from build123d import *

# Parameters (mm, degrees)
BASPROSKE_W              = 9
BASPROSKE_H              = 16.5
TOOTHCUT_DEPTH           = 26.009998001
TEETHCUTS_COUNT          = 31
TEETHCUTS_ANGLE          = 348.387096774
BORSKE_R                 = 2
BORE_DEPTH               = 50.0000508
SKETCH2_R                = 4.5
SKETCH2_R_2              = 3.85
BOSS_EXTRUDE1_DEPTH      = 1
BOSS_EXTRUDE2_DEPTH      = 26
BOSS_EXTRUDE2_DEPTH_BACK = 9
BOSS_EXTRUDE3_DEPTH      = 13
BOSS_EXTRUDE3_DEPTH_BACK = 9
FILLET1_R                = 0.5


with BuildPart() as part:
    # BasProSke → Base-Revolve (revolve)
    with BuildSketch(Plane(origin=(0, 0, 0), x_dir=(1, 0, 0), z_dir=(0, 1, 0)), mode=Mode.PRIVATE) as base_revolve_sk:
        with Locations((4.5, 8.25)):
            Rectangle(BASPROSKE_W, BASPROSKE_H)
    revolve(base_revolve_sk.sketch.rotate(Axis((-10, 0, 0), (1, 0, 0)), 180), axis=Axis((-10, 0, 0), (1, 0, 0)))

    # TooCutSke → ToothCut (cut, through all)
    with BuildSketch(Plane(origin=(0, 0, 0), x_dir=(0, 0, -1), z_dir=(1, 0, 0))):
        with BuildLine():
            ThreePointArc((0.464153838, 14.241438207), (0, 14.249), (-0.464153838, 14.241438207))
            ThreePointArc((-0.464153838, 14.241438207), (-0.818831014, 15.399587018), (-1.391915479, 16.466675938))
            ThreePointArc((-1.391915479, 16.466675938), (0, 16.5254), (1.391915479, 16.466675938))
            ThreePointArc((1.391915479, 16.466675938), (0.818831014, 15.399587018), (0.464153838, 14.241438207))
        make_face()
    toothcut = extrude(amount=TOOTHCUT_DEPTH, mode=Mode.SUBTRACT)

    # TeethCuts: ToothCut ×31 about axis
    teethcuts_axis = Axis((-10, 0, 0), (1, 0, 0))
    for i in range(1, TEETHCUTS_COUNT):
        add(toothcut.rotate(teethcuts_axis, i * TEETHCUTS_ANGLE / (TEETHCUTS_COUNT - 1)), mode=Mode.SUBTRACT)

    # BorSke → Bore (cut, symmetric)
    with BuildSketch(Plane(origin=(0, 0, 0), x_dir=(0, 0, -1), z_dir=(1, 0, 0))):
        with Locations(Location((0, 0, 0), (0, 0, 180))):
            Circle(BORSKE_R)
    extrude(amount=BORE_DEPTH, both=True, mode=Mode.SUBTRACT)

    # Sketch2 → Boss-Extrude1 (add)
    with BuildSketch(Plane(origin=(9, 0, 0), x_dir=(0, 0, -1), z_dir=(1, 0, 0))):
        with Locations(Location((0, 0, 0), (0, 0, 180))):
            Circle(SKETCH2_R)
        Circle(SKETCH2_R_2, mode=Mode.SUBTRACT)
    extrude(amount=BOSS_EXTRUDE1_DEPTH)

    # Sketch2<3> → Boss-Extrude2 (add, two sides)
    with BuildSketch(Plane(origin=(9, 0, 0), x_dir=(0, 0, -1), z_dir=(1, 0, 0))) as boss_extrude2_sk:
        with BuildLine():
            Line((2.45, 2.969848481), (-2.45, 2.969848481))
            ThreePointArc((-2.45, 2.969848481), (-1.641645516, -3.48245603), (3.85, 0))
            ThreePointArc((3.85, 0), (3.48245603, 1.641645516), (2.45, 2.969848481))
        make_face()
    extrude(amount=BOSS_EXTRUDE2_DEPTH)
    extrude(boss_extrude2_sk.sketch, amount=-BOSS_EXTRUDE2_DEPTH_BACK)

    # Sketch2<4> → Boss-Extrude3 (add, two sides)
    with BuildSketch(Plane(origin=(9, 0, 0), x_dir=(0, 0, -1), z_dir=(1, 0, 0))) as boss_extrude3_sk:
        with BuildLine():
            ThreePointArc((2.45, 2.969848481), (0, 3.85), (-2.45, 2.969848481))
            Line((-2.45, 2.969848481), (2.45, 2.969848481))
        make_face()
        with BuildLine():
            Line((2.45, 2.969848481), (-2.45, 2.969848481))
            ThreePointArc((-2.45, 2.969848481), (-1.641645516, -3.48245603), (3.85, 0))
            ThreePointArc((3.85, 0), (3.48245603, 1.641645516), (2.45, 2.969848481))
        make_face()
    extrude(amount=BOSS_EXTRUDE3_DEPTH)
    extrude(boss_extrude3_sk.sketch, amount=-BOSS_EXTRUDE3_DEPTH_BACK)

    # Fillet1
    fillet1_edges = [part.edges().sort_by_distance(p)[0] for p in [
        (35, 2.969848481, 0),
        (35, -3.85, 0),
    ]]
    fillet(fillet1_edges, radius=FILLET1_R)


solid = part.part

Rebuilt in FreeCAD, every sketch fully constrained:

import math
import FreeCAD as App
import Part
import Sketcher

V = App.Vector


def edges_at(feature, points):
    """Names of the edges that pass closest to the given points."""
    edges = feature.Shape.Edges
    near = lambda p: min(range(len(edges)), key=lambda i: edges[i].distToShape(Part.Vertex(*p))[0])
    return sorted({f"Edge{near(p) + 1}" for p in points})


def add_polygon(sketch, points):
    """Adds a closed chain of lines whose ends are joined by coincident constraints."""
    first, n = sketch.GeometryCount, len(points)
    for a, b in zip(points, points[1:] + points[:1]):
        sketch.addGeometry(Part.LineSegment(App.Vector(*a, 0), App.Vector(*b, 0)), False)
    for i in range(n):
        sketch.addConstraint(Sketcher.Constraint("Coincident", first + i, 2, first + (i + 1) % n, 1))

doc = App.newDocument("Part")
params = doc.addObject("Spreadsheet::Sheet", "Params")
for row, (alias, value) in enumerate([
    ("sketch1_width", "9 mm"),
    ("sketch1_height", "16.5 mm"),
    ("revolution_angle", "360 deg"),
    ("sketch2_radius", "6.2 mm"),
    ("sketch3_diameter", "4 mm"),
    ("pocket2_length", "100.000102 mm"),
    ("sketch4_diameter", "9 mm"),
    ("sketch4_diameter2", "7.7 mm"),
    ("pad1_length", "1 mm"),
    ("sketch5_radius", "3.85 mm"),
    ("sketch5_height", "4.9 mm"),
    ("pad2_length", "26 mm"),
    ("pad2_length2", "9 mm"),
    ("sketch6_radius", "3.85 mm"),
    ("pad3_length", "13 mm"),
    ("pad3_length2", "9 mm"),
    ("fillet_radius", "0.5 mm"),
], start=1):
    params.set(f"A{row}", alias)
    params.set(f"B{row}", "=" + value)
    params.setAlias(f"B{row}", alias)

body = doc.addObject("PartDesign::Body", "Body")

sketch1 = body.newObject("Sketcher::SketchObject", "Sketch")
sketch1.AttachmentSupport = (doc.getObject("XZ_Plane"), [""])
sketch1.MapMode = "FlatFace"
add_polygon(sketch1, [(0, -16), (0, 0), (9, 0), (9, -16)])
sketch1.addConstraint(Sketcher.Constraint("Vertical", 0))
sketch1.addConstraint(Sketcher.Constraint("Horizontal", 1))
sketch1.addConstraint(Sketcher.Constraint("Vertical", 2))
sketch1.addConstraint(Sketcher.Constraint("Horizontal", 3))
sketch1.addConstraint(Sketcher.Constraint("Coincident", 0, 2, -1, 1))
sketch1.addConstraint(Sketcher.Constraint("DistanceX", 1, 1, 1, 2, 9.0))
sketch1.addConstraint(Sketcher.Constraint("DistanceY", 0, 1, 0, 2, 16.5))
sketch1.setExpression("Constraints[9]", "Params.sketch1_width")
sketch1.setExpression("Constraints[10]", "Params.sketch1_height")
revolution = body.newObject("PartDesign::Revolution", "Revolution")
revolution.Profile = sketch1
revolution.ReferenceAxis = (sketch1, ["H_Axis"])
revolution.setExpression("Angle", "Params.revolution_angle")

sketch2 = body.newObject("Sketcher::SketchObject", "Sketch001")
sketch2.AttachmentSupport = (doc.getObject("YZ_Plane"), [""])
sketch2.MapMode = "FlatFace"
sketch2.addGeometry(Part.ArcOfCircle(Part.Circle(V(0, 0, 0), V(0, 0, 1), 14.2), math.radians(-1.87), math.radians(1.87)), False)
sketch2.addGeometry(Part.ArcOfCircle(Part.Circle(V(13, -6.5, 0), V(0, 0, 1), 6.2), math.radians(56), math.radians(79)), False)
sketch2.addGeometry(Part.ArcOfCircle(Part.Circle(V(0, 0, 0), V(0, 0, 1), 16.5), math.radians(-4.83), math.radians(4.83)), False)
sketch2.addGeometry(Part.ArcOfCircle(Part.Circle(V(13, 6.5, 0), V(0, 0, 1), 6.2), math.radians(-79), math.radians(-56)), False)
sketch2.addConstraint(Sketcher.Constraint("Coincident", 0, 1, 1, 2))
sketch2.addConstraint(Sketcher.Constraint("Coincident", 1, 1, 2, 1))
sketch2.addConstraint(Sketcher.Constraint("Coincident", 2, 2, 3, 2))
sketch2.addConstraint(Sketcher.Constraint("Coincident", 3, 1, 0, 2))
sketch2.addConstraint(Sketcher.Constraint("Coincident", 0, 3, -1, 1))
sketch2.addConstraint(Sketcher.Constraint("Coincident", 2, 3, -1, 1))
sketch2.addConstraint(Sketcher.Constraint("Equal", 1, 3))
sketch2.addConstraint(Sketcher.Constraint("Symmetric", 1, 3, 3, 3, -1))
sketch2.addConstraint(Sketcher.Constraint("Radius", 1, 6.2))
sketch2.addConstraint(Sketcher.Constraint("Radius", 0, 14.248999))
sketch2.addConstraint(Sketcher.Constraint("Radius", 2, 16.5254))
sketch2.addConstraint(Sketcher.Constraint("DistanceX", 0, 3, 1, 3, 13.013702))
sketch2.addConstraint(Sketcher.Constraint("DistanceY", 1, 3, -1, 1, 6.541379))
sketch2.setExpression("Constraints[8]", "Params.sketch2_radius")
pocket1 = body.newObject("PartDesign::Pocket", "Pocket")
pocket1.Profile = sketch2
pocket1.Type = "ThroughAll"
pocket1.Reversed = True
doc.recompute()

polarpattern = body.newObject("PartDesign::PolarPattern", "PolarPattern")
polarpattern.Originals = [pocket1]
polarpattern.Axis = (doc.getObject("X_Axis"), [""])
polarpattern.Angle = 360
polarpattern.Occurrences = 31
body.Tip = polarpattern

sketch3 = body.newObject("Sketcher::SketchObject", "Sketch002")
sketch3.AttachmentSupport = (doc.getObject("YZ_Plane"), [""])
sketch3.MapMode = "FlatFace"
sketch3.addGeometry(Part.Circle(V(0, 0, 0), V(0, 0, 1), 2), False)
sketch3.addConstraint(Sketcher.Constraint("Coincident", 0, 3, -1, 1))
sketch3.addConstraint(Sketcher.Constraint("Diameter", 0, 4.0))
sketch3.setExpression("Constraints[1]", "Params.sketch3_diameter")
pocket2 = body.newObject("PartDesign::Pocket", "Pocket001")
pocket2.Profile = sketch3
pocket2.setExpression("Length", "Params.pocket2_length")
pocket2.Midplane = True

sketch4 = body.newObject("Sketcher::SketchObject", "Sketch003")
sketch4.AttachmentSupport = (doc.getObject("YZ_Plane"), [""])
sketch4.MapMode = "FlatFace"
sketch4.AttachmentOffset = App.Placement(V(0, 0, 9), App.Rotation())
sketch4.addGeometry(Part.Circle(V(0, 0, 0), V(0, 0, 1), 4.5), False)
sketch4.addGeometry(Part.Circle(V(0, 0, 0), V(0, 0, 1), 3.9), False)
sketch4.addConstraint(Sketcher.Constraint("Coincident", 0, 3, -1, 1))
sketch4.addConstraint(Sketcher.Constraint("Coincident", 1, 3, -1, 1))
sketch4.addConstraint(Sketcher.Constraint("Diameter", 0, 9.0))
sketch4.addConstraint(Sketcher.Constraint("Diameter", 1, 7.7))
sketch4.setExpression("Constraints[2]", "Params.sketch4_diameter")
sketch4.setExpression("Constraints[3]", "Params.sketch4_diameter2")
pad1 = body.newObject("PartDesign::Pad", "Pad")
pad1.Profile = sketch4
pad1.setExpression("Length", "Params.pad1_length")

sketch5 = body.newObject("Sketcher::SketchObject", "Sketch004")
sketch5.AttachmentSupport = (doc.getObject("YZ_Plane"), [""])
sketch5.MapMode = "FlatFace"
sketch5.AttachmentOffset = App.Placement(V(0, 0, 9), App.Rotation())
sketch5.addGeometry(Part.LineSegment(V(3, -2.5, 0), V(3, 2.5, 0)), False)
sketch5.addGeometry(Part.ArcOfCircle(Part.Circle(V(0, 0, 0), V(0, 0, 1), 3.9), math.radians(40), math.radians(270)), False)
sketch5.addGeometry(Part.ArcOfCircle(Part.Circle(V(0, 0, 0), V(0, 0, 1), 3.8), math.radians(-90), math.radians(-40)), False)
sketch5.addConstraint(Sketcher.Constraint("Coincident", 0, 2, 1, 1))
sketch5.addConstraint(Sketcher.Constraint("Tangent", 1, 2, 2, 1))
sketch5.addConstraint(Sketcher.Constraint("Coincident", 2, 2, 0, 1))
sketch5.addConstraint(Sketcher.Constraint("Vertical", 0))
sketch5.addConstraint(Sketcher.Constraint("Coincident", 1, 3, -1, 1))
sketch5.addConstraint(Sketcher.Constraint("Equal", 1, 2))
sketch5.addConstraint(Sketcher.Constraint("PointOnObject", 1, 2, -2))
sketch5.addConstraint(Sketcher.Constraint("Radius", 1, 3.85))
sketch5.addConstraint(Sketcher.Constraint("DistanceY", 0, 1, 0, 2, 4.9))
sketch5.setExpression("Constraints[7]", "Params.sketch5_radius")
sketch5.setExpression("Constraints[8]", "Params.sketch5_height")
pad2 = body.newObject("PartDesign::Pad", "Pad001")
pad2.Profile = sketch5
pad2.Type = "TwoLengths"
pad2.setExpression("Length", "Params.pad2_length")
pad2.setExpression("Length2", "Params.pad2_length2")

sketch6 = body.newObject("Sketcher::SketchObject", "Sketch005")
sketch6.AttachmentSupport = (doc.getObject("YZ_Plane"), [""])
sketch6.MapMode = "FlatFace"
sketch6.AttachmentOffset = App.Placement(V(0, 0, 9), App.Rotation())
sketch6.addGeometry(Part.ArcOfCircle(Part.Circle(V(0, 0, 0), V(0, 0, 1), 3.9), math.radians(-40), math.radians(40)), False)
sketch6.addGeometry(Part.ArcOfCircle(Part.Circle(V(0, 0, 0), V(0, 0, 1), 3.9), math.radians(40), math.radians(270)), False)
sketch6.addGeometry(Part.ArcOfCircle(Part.Circle(V(0, 0, 0), V(0, 0, 1), 3.8), math.radians(-90), math.radians(-40)), False)
sketch6.addConstraint(Sketcher.Constraint("Tangent", 0, 2, 1, 1))
sketch6.addConstraint(Sketcher.Constraint("Tangent", 1, 2, 2, 1))
sketch6.addConstraint(Sketcher.Constraint("Tangent", 2, 2, 0, 1))
sketch6.addConstraint(Sketcher.Constraint("Coincident", 0, 3, -1, 1))
sketch6.addConstraint(Sketcher.Constraint("PointOnObject", 1, 2, -2))
sketch6.addConstraint(Sketcher.Constraint("Vertical", 0, 2, 2, 2))
sketch6.addConstraint(Sketcher.Constraint("Radius", 0, 3.85))
sketch6.addConstraint(Sketcher.Constraint("DistanceY", 1, 2, 0, 2, 6.3))
sketch6.setExpression("Constraints[6]", "Params.sketch6_radius")
pad3 = body.newObject("PartDesign::Pad", "Pad002")
pad3.Profile = sketch6
pad3.Type = "TwoLengths"
pad3.setExpression("Length", "Params.pad3_length")
pad3.setExpression("Length2", "Params.pad3_length2")
doc.recompute()

fillet = body.newObject("PartDesign::Fillet", "Fillet")
fillet.Base = (pad3, edges_at(pad3, [(35, 2.97, 0), (35, -3.482, 1.642)]))
fillet.setExpression("Radius", "Params.fillet_radius")

doc.recompute()
